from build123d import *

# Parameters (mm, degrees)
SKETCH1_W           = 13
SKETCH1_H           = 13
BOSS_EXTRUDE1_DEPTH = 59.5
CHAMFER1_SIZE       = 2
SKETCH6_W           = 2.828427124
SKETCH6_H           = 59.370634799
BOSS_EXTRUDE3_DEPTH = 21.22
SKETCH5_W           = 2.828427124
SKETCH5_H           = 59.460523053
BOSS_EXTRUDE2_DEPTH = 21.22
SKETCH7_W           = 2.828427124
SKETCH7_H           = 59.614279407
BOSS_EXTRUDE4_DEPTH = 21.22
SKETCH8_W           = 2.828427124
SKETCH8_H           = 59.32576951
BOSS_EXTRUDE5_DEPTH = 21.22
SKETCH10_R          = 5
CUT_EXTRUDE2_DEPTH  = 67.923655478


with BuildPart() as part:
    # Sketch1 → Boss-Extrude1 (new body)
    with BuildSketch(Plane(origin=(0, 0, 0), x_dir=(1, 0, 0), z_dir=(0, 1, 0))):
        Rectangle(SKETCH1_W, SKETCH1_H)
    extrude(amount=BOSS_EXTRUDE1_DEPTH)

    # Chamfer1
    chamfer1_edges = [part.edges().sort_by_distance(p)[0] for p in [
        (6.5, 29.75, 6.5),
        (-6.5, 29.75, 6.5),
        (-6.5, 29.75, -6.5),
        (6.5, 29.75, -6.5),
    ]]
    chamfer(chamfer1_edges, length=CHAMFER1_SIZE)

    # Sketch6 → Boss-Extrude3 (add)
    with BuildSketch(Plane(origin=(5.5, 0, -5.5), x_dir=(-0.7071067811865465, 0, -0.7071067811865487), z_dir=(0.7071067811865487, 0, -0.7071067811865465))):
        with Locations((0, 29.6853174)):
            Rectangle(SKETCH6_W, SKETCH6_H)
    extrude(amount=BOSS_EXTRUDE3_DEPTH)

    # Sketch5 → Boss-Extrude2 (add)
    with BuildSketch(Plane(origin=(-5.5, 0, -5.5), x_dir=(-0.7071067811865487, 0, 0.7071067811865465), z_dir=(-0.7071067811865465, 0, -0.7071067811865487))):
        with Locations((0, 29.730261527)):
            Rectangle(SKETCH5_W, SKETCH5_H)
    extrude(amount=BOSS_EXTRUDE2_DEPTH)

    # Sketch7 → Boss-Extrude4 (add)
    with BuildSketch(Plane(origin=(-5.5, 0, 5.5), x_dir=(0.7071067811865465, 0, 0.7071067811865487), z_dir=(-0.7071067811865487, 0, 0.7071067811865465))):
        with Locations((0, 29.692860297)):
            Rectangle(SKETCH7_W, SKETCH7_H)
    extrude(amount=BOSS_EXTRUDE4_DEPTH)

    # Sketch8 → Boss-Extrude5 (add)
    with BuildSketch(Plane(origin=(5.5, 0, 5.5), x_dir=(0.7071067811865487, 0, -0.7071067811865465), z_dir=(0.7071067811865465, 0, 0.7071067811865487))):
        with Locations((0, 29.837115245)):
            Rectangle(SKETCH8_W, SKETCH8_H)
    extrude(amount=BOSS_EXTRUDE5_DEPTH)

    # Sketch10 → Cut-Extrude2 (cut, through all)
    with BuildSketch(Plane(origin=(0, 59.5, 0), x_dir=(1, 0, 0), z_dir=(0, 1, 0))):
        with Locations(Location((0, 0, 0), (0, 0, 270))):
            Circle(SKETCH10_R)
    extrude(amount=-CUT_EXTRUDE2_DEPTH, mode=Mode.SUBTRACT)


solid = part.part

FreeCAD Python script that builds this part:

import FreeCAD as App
import Part
import Sketcher

V = App.Vector
Q = App.Units.Quantity


def edges_at(feature, points):
    """Names of the edges that pass closest to the given points."""
    edges = feature.Shape.Edges
    near = lambda p: min(range(len(edges)), key=lambda i: edges[i].distToShape(Part.Vertex(*p))[0])
    return sorted({f"Edge{near(p) + 1}" for p in points})

doc = App.newDocument("Part")
body = doc.addObject("PartDesign::Body", "Body")

# Sketch on XZ plane
sketch1 = body.newObject("Sketcher::SketchObject", "Sketch")
sketch1.AttachmentSupport = (doc.getObject("XZ_Plane"), [""])
sketch1.MapMode = "FlatFace"
sketch1.addGeometry([
    Part.LineSegment(V(-6, -6, 0), V(-6, 6, 0)),
    Part.LineSegment(V(-6, 6, 0), V(6, 6, 0)),
    Part.LineSegment(V(6, 6, 0), V(6, -6, 0)),
    Part.LineSegment(V(6, -6, 0), V(-6, -6, 0)),
], False)
sketch1.addConstraint([
    Sketcher.Constraint("Coincident", 0, 2, 1, 1),
    Sketcher.Constraint("Coincident", 1, 2, 2, 1),
    Sketcher.Constraint("Coincident", 2, 2, 3, 1),
    Sketcher.Constraint("Coincident", 3, 2, 0, 1),
    Sketcher.Constraint("Vertical", 0),
    Sketcher.Constraint("Horizontal", 1),
    Sketcher.Constraint("Vertical", 2),
    Sketcher.Constraint("Horizontal", 3),
    Sketcher.Constraint("Symmetric", 0, 2, 2, 2, -1, 1),
    Sketcher.Constraint("Equal", 3, 0),
    Sketcher.Constraint("DistanceX", 1, 1, 1, 2, Q("13 mm")),
])
pad1 = body.newObject("PartDesign::Pad", "Pad")
pad1.Profile = sketch1
pad1.Length = 59.5
pad1.Reversed = True
doc.recompute()

chamfer = body.newObject("PartDesign::Chamfer", "Chamfer")
chamfer.Base = (pad1, edges_at(pad1, [
    (6.5, 29.75, 6.5),
    (-6.5, 29.75, 6.5),
    (-6.5, 29.75, -6.5),
    (6.5, 29.75, -6.5),
]))
chamfer.Size = 2

# Sketch on an angled plane
sketch2 = body.newObject("Sketcher::SketchObject", "Sketch001")
sketch2.Placement = App.Placement(V(5.5, 0, -5.5), App.Rotation(V(-0.707106781, 0, -0.707106781), V(0, 0.999999999, 0), V(0.707106781, 0, -0.707106781), "ZXY"))
sketch2.addGeometry([
    Part.LineSegment(V(-1.4, 59.4, 0), V(-1.4, 0, 0)),
    Part.LineSegment(V(-1.4, 0, 0), V(1.4, 0, 0)),
    Part.LineSegment(V(1.4, 0, 0), V(1.4, 59.4, 0)),
    Part.LineSegment(V(1.4, 59.4, 0), V(-1.4, 59.4, 0)),
], False)
sketch2.addConstraint([
    Sketcher.Constraint("Coincident", 0, 2, 1, 1),
    Sketcher.Constraint("Coincident", 1, 2, 2, 1),
    Sketcher.Constraint("Coincident", 2, 2, 3, 1),
    Sketcher.Constraint("Coincident", 3, 2, 0, 1),
    Sketcher.Constraint("Vertical", 0),
    Sketcher.Constraint("Horizontal", 1),
    Sketcher.Constraint("Vertical", 2),
    Sketcher.Constraint("Horizontal", 3),
    Sketcher.Constraint("Symmetric", 0, 2, 1, 2, -1, 1),
    Sketcher.Constraint("DistanceX", 1, 1, 1, 2, Q("2.828427 mm")),
    Sketcher.Constraint("DistanceY", 0, 2, 0, 1, Q("59.370635 mm")),
])
pad2 = body.newObject("PartDesign::Pad", "Pad001")
pad2.Profile = sketch2
pad2.Length = 21.22

# Sketch on an angled plane
sketch3 = body.newObject("Sketcher::SketchObject", "Sketch002")
sketch3.Placement = App.Placement(V(-5.5, 0, -5.5), App.Rotation(V(-0.707106781, 0, 0.707106781), V(0, 0.999999999, 0), V(-0.707106781, 0, -0.707106781), "ZXY"))
sketch3.addGeometry([
    Part.LineSegment(V(-1.4, 59.5, 0), V(-1.4, 0, 0)),
    Part.LineSegment(V(-1.4, 0, 0), V(1.4, 0, 0)),
    Part.LineSegment(V(1.4, 0, 0), V(1.4, 59.5, 0)),
    Part.LineSegment(V(1.4, 59.5, 0), V(-1.4, 59.5, 0)),
], False)
sketch3.addConstraint([
    Sketcher.Constraint("Coincident", 0, 2, 1, 1),
    Sketcher.Constraint("Coincident", 1, 2, 2, 1),
    Sketcher.Constraint("Coincident", 2, 2, 3, 1),
    Sketcher.Constraint("Coincident", 3, 2, 0, 1),
    Sketcher.Constraint("Vertical", 0),
    Sketcher.Constraint("Horizontal", 1),
    Sketcher.Constraint("Vertical", 2),
    Sketcher.Constraint("Horizontal", 3),
    Sketcher.Constraint("Symmetric", 0, 2, 1, 2, -1, 1),
    Sketcher.Constraint("DistanceX", 1, 1, 1, 2, Q("2.828427 mm")),
    Sketcher.Constraint("DistanceY", 0, 2, 0, 1, Q("59.460523 mm")),
])
pad3 = body.newObject("PartDesign::Pad", "Pad002")
pad3.Profile = sketch3
pad3.Length = 21.22

# Sketch on an angled plane
sketch4 = body.newObject("Sketcher::SketchObject", "Sketch003")
sketch4.Placement = App.Placement(V(-5.5, 0, 5.5), App.Rotation(V(0.707106781, 0, 0.707106781), V(0, 0.999999999, 0), V(-0.707106781, 0, 0.707106781), "ZXY"))
sketch4.addGeometry([
    Part.LineSegment(V(-1.4, 59.5, 0), V(-1.4, -0.1, 0)),
    Part.LineSegment(V(-1.4, -0.1, 0), V(1.4, -0.1, 0)),
    Part.LineSegment(V(1.4, -0.1, 0), V(1.4, 59.5, 0)),
    Part.LineSegment(V(1.4, 59.5, 0), V(-1.4, 59.5, 0)),
], False)
sketch4.addConstraint([
    Sketcher.Constraint("Coincident", 0, 2, 1, 1),
    Sketcher.Constraint("Coincident", 1, 2, 2, 1),
    Sketcher.Constraint("Coincident", 2, 2, 3, 1),
    Sketcher.Constraint("Coincident", 3, 2, 0, 1),
    Sketcher.Constraint("Vertical", 0),
    Sketcher.Constraint("Horizontal", 1),
    Sketcher.Constraint("Vertical", 2),
    Sketcher.Constraint("Horizontal", 3),
    Sketcher.Constraint("DistanceY", -1, 1, 2, 2, Q("59.5 mm")),
    Sketcher.Constraint("DistanceY", 0, 2, 0, 1, Q("59.614279 mm")),
    Sketcher.Constraint("DistanceX", 1, 1, 1, 2, Q("2.828427 mm")),
    Sketcher.Constraint("DistanceX", 0, 2, -1, 1, Q("1.414214 mm")),
])
pad4 = body.newObject("PartDesign::Pad", "Pad003")
pad4.Profile = sketch4
pad4.Length = 21.22

# Sketch on an angled plane
sketch5 = body.newObject("Sketcher::SketchObject", "Sketch004")
sketch5.Placement = App.Placement(V(5.5, 0, 5.5), App.Rotation(V(0.707106781, 0, -0.707106781), V(0, 0.999999999, 0), V(0.707106781, 0, 0.707106781), "ZXY"))
sketch5.addGeometry([
    Part.LineSegment(V(-1.4, 59.5, 0), V(-1.4, 0.2, 0)),
    Part.LineSegment(V(-1.4, 0.2, 0), V(1.4, 0.2, 0)),
    Part.LineSegment(V(1.4, 0.2, 0), V(1.4, 59.5, 0)),
    Part.LineSegment(V(1.4, 59.5, 0), V(-1.4, 59.5, 0)),
], False)
sketch5.addConstraint([
    Sketcher.Constraint("Coincident", 0, 2, 1, 1),
    Sketcher.Constraint("Coincident", 1, 2, 2, 1),
    Sketcher.Constraint("Coincident", 2, 2, 3, 1),
    Sketcher.Constraint("Coincident", 3, 2, 0, 1),
    Sketcher.Constraint("Vertical", 0),
    Sketcher.Constraint("Horizontal", 1),
    Sketcher.Constraint("Vertical", 2),
    Sketcher.Constraint("Horizontal", 3),
    Sketcher.Constraint("DistanceY", -1, 1, 2, 2, Q("59.5 mm")),
    Sketcher.Constraint("DistanceY", 0, 2, 0, 1, Q("59.325769 mm")),
    Sketcher.Constraint("DistanceX", 1, 1, 1, 2, Q("2.828427 mm")),
    Sketcher.Constraint("DistanceX", 0, 2, -1, 1, Q("1.414214 mm")),
])
pad5 = body.newObject("PartDesign::Pad", "Pad004")
pad5.Profile = sketch5
pad5.Length = 21.22

# Sketch on XZ plane
sketch6 = body.newObject("Sketcher::SketchObject", "Sketch005")
sketch6.AttachmentSupport = (doc.getObject("XZ_Plane"), [""])
sketch6.MapMode = "FlatFace"
sketch6.AttachmentOffset = App.Placement(V(0, 0, -59.5), App.Rotation())
sketch6.addGeometry(Part.Circle(V(0, 0, 0), V(0, 0, 1), 5), False)
sketch6.addConstraint([
    Sketcher.Constraint("Coincident", 0, 3, -1, 1),
    Sketcher.Constraint("Diameter", 0, Q("10 mm")),
])
pocket1 = body.newObject("PartDesign::Pocket", "Pocket")
pocket1.Profile = sketch6
pocket1.Type = "ThroughAll"
pocket1.Reversed = True

doc.recompute()
